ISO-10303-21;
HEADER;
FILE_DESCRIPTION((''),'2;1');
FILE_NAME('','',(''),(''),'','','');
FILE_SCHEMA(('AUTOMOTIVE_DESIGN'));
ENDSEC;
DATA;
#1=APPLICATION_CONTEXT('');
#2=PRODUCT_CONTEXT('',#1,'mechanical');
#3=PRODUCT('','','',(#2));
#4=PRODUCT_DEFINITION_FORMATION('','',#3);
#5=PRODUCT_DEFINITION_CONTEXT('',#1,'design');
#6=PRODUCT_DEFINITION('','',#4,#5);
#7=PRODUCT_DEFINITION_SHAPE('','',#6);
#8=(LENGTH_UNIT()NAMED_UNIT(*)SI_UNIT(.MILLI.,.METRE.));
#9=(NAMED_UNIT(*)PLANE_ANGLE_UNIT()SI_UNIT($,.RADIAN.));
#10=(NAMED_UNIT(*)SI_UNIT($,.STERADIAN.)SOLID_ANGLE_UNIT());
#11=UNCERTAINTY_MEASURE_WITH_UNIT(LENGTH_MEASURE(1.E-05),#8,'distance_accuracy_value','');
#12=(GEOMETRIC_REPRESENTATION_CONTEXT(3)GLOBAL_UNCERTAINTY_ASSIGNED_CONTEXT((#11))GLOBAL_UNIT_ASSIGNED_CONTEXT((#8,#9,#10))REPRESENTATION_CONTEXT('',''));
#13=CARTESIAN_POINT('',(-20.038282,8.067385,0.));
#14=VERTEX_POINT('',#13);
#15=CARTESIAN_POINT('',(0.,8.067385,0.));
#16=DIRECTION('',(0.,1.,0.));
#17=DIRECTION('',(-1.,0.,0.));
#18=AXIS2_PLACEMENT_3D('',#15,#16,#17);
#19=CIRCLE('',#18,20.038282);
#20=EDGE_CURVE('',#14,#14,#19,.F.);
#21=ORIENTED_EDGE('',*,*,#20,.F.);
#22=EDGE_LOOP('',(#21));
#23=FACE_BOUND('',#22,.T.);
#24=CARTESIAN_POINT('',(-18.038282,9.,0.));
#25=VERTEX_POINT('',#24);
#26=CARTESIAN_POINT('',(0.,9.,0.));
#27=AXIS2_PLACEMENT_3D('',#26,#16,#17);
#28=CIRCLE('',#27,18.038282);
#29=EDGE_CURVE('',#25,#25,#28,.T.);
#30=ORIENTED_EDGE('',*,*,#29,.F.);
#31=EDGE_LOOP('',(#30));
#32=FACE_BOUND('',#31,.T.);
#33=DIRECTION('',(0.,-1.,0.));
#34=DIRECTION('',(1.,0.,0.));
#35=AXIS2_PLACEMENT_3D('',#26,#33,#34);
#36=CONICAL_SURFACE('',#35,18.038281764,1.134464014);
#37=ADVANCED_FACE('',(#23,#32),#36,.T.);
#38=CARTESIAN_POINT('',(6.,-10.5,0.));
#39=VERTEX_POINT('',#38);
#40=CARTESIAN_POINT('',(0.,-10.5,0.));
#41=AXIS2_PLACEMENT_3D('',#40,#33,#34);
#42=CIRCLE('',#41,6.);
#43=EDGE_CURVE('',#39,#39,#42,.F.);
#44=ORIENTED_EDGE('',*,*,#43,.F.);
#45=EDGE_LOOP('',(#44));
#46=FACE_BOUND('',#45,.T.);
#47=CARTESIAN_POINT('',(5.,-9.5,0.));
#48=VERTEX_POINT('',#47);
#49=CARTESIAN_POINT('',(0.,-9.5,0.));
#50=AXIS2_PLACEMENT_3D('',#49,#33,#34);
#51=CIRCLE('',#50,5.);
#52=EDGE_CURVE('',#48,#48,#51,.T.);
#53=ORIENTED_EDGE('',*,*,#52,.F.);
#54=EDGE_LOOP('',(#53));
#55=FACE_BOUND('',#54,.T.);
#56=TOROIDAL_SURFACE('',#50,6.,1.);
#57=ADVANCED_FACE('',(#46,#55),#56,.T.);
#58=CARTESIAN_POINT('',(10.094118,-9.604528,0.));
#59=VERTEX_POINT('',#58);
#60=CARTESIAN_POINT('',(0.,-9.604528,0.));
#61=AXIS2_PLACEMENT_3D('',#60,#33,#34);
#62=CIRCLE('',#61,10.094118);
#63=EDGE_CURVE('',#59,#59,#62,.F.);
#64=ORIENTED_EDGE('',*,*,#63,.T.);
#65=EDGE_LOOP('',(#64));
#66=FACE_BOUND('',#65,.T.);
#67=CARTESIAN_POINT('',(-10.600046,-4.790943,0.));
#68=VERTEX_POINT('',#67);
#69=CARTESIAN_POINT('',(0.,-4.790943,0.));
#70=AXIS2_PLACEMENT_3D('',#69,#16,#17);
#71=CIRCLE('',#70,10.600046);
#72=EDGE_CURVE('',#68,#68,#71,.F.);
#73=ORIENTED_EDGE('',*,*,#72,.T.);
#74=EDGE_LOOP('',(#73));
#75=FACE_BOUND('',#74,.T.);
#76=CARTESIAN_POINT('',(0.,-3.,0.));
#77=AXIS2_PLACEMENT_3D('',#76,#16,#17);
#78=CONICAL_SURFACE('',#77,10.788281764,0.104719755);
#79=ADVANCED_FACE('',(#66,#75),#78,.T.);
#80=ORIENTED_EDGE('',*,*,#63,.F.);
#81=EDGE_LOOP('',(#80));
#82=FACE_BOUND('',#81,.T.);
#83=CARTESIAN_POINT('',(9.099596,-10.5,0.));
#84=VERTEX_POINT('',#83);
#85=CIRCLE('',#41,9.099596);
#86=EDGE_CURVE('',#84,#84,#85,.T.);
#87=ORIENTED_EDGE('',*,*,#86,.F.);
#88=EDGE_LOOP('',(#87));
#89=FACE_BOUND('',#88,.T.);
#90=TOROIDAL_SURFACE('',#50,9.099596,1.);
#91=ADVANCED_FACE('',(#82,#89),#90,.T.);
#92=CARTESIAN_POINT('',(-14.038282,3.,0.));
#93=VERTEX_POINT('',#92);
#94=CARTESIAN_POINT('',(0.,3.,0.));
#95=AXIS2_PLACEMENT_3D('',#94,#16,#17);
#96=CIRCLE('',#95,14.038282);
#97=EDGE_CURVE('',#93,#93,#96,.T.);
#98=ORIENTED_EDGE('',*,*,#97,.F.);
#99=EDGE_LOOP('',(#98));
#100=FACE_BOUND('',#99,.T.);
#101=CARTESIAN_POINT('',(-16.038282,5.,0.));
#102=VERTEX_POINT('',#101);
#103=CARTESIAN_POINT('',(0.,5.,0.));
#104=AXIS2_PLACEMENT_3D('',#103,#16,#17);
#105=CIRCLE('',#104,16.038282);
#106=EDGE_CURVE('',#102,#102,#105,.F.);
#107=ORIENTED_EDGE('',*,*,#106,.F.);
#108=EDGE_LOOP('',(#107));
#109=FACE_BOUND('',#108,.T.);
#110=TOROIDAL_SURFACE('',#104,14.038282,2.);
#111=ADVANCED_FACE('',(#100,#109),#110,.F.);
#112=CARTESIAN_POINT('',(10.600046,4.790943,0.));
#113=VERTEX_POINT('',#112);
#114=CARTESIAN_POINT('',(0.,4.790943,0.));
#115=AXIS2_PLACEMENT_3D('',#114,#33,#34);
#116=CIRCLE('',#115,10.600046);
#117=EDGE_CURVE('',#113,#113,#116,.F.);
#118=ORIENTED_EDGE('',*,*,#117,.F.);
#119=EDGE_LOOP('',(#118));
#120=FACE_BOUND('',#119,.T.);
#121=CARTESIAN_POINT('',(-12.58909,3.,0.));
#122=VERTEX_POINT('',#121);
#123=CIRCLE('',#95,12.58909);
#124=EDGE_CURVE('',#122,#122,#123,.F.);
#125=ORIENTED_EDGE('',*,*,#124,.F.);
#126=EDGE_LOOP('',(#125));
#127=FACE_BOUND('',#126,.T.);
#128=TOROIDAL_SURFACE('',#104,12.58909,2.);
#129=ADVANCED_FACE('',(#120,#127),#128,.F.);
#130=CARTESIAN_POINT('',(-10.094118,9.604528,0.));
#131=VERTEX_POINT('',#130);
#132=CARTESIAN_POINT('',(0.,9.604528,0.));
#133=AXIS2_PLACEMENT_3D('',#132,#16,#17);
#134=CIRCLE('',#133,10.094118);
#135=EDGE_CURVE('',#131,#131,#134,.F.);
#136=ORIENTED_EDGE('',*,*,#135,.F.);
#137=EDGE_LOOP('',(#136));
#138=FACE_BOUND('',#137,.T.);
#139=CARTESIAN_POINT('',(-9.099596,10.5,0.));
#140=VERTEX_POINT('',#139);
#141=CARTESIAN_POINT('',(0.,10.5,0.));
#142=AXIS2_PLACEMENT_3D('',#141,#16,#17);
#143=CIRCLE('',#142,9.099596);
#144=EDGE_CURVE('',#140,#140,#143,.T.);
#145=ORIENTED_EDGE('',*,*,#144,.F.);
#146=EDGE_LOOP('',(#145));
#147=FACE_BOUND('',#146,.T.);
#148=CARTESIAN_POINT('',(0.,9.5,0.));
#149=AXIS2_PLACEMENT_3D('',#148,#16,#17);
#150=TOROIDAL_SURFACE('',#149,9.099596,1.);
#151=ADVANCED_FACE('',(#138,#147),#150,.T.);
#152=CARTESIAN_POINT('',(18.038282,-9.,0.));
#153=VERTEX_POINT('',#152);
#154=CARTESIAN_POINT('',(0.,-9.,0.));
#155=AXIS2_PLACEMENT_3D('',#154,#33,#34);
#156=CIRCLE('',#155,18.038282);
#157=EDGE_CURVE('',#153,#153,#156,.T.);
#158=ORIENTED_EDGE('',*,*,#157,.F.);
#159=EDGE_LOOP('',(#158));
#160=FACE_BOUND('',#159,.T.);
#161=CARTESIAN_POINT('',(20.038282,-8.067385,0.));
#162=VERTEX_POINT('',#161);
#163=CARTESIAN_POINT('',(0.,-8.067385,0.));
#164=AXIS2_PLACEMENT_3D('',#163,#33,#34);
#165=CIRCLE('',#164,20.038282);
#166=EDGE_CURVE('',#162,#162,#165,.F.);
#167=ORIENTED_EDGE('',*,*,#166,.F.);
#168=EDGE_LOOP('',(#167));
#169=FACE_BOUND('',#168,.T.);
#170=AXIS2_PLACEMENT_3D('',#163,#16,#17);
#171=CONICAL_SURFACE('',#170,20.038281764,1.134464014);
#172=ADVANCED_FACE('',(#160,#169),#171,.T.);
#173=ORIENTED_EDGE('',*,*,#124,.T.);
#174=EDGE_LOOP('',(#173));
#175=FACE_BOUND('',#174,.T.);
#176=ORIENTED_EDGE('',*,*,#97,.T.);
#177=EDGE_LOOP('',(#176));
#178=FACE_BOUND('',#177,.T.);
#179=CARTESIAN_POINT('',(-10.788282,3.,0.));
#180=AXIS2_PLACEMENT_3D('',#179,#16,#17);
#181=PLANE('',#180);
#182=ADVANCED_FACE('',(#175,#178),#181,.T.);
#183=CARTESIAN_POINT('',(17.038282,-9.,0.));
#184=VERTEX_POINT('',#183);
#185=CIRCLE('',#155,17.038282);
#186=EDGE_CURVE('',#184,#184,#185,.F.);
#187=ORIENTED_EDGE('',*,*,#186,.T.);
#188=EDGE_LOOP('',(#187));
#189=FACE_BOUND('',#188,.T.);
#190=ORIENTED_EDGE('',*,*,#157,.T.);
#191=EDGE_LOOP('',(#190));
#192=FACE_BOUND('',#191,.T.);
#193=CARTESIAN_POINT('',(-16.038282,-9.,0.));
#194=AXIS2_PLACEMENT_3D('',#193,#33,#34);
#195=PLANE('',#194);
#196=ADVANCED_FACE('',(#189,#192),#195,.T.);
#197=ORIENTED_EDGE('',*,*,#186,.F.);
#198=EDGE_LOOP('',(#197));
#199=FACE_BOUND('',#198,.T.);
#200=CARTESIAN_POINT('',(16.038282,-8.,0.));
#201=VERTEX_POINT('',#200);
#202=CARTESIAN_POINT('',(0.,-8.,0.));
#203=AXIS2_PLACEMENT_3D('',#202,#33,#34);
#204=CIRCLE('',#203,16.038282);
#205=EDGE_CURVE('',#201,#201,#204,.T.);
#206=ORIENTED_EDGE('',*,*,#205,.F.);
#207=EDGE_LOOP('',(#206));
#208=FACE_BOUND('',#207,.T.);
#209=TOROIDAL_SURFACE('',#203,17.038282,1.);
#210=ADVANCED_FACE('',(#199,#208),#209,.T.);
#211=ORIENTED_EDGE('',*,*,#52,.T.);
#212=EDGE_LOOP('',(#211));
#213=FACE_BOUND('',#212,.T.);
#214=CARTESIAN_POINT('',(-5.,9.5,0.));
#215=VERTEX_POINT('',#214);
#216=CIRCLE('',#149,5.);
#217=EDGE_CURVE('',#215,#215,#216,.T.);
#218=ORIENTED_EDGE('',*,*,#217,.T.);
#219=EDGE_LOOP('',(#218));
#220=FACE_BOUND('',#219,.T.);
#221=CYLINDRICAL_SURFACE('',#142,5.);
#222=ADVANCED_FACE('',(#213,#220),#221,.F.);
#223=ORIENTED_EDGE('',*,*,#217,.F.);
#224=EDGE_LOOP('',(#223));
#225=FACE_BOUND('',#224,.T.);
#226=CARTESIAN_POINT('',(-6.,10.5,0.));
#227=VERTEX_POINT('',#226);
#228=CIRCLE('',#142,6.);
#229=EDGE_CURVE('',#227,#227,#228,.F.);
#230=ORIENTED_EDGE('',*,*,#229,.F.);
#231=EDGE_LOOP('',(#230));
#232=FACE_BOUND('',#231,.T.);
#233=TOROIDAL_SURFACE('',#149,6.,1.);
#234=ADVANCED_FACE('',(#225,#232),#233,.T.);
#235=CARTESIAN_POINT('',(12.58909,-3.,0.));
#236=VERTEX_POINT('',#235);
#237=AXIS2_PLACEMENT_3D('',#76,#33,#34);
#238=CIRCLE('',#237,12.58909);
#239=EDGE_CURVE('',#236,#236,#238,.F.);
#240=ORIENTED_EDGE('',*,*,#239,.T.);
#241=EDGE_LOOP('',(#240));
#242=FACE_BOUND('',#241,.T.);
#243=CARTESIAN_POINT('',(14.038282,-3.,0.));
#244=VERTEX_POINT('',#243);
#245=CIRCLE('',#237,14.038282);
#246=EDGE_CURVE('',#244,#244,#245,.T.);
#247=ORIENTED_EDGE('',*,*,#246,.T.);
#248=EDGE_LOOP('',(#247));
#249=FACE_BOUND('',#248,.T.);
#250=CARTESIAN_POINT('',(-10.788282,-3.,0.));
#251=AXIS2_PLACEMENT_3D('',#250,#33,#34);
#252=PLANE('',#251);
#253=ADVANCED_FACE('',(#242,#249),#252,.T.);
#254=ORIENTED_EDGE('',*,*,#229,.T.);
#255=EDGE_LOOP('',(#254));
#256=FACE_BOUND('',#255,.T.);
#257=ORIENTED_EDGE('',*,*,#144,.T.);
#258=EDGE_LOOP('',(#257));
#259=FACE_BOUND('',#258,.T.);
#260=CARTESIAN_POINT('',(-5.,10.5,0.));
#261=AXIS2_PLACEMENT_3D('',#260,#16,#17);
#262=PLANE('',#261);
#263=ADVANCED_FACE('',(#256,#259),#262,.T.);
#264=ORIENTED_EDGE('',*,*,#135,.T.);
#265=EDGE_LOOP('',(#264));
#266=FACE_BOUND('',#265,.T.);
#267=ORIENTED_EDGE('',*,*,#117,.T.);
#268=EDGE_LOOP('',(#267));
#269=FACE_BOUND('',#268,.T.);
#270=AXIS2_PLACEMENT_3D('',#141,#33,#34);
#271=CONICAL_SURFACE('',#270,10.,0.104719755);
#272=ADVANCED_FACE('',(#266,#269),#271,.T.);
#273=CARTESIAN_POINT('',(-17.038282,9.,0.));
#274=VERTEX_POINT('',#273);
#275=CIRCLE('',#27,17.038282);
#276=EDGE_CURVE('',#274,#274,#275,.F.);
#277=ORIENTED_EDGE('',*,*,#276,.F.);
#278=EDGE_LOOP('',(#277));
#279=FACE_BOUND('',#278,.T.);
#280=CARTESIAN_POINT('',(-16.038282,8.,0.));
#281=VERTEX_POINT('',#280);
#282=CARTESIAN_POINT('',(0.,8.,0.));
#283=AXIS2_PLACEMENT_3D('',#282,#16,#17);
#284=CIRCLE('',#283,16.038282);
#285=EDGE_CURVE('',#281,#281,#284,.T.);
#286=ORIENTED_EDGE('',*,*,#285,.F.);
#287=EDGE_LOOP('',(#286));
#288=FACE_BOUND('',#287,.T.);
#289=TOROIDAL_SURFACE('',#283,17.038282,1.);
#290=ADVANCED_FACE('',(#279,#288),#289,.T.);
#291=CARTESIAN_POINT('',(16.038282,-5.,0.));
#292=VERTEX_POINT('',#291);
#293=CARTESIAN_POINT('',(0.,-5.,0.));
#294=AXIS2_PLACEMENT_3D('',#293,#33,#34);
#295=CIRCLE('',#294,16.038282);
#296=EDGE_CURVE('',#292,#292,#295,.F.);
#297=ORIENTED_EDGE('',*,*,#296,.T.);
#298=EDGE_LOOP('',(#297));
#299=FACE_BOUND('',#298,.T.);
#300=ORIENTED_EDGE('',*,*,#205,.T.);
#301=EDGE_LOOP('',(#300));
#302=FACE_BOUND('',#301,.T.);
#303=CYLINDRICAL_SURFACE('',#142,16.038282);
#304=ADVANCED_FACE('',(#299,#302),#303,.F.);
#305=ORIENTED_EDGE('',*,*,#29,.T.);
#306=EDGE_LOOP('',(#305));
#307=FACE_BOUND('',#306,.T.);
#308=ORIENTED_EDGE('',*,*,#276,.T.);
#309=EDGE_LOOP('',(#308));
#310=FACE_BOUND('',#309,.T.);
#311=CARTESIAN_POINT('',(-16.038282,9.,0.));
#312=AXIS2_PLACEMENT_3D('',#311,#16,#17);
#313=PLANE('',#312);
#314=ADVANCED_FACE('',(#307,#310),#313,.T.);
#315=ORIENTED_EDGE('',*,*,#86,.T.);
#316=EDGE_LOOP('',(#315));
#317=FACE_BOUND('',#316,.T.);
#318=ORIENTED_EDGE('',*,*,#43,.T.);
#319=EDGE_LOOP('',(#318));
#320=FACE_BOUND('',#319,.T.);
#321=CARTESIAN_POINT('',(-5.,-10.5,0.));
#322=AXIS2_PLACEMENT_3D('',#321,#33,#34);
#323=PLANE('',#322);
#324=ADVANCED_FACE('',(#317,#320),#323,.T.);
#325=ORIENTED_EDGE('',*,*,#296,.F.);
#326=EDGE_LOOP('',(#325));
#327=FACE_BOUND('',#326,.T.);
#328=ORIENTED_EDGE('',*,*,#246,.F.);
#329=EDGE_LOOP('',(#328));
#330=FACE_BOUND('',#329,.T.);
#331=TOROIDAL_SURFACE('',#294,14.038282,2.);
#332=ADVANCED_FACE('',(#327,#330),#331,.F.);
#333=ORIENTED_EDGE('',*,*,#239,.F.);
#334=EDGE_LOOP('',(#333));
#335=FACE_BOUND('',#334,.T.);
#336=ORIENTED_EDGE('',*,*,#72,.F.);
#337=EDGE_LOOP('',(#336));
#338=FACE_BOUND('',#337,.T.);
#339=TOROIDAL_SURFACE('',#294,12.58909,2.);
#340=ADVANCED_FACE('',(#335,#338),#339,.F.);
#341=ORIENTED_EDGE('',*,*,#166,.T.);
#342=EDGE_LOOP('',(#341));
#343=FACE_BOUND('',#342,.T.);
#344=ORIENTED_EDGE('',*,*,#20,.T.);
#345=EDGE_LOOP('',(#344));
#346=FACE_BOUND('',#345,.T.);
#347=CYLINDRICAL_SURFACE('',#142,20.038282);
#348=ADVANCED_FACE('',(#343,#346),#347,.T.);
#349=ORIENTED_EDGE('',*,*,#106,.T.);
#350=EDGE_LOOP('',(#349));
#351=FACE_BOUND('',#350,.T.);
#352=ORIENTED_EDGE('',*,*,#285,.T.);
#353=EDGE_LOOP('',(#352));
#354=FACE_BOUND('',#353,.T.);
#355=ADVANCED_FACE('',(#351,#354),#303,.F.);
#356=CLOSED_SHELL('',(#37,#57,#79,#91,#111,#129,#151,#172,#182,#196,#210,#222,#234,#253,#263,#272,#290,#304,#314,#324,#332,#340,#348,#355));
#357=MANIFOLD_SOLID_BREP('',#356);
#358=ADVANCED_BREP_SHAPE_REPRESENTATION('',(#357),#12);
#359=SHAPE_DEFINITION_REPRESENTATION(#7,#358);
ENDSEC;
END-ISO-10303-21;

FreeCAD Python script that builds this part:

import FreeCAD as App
import Part
import Sketcher

V = App.Vector
Q = App.Units.Quantity


def edges_at(feature, points):
    """Names of the edges that pass closest to the given points."""
    edges = feature.Shape.Edges
    near = lambda p: min(range(len(edges)), key=lambda i: edges[i].distToShape(Part.Vertex(*p))[0])
    return sorted({f"Edge{near(p) + 1}" for p in points})

doc = App.newDocument("Part")
params = doc.addObject("Spreadsheet::Sheet", "Params")
for row, (alias, value) in enumerate([
    ("sketch1_width", "5 mm"),
    ("sketch1_width2", "4 mm"),
    ("sketch1_height", "6 mm"),
    ("sketch1_height2", "18 mm"),
    ("sketch1_height3", "21 mm"),
    ("revolution_angle", "360 deg"),
    ("fillet_radius", "2 mm"),
    ("fillet2_radius", "1 mm"),
    ("chamfer_size", "2 mm"),
    ("chamfer_size2", "0.932615 mm"),
    ("chamfer2_size", "2 mm"),
    ("chamfer2_size2", "0.932615 mm"),
], start=1):
    params.set(f"A{row}", alias)
    params.set(f"B{row}", "=" + value)
    params.setAlias(f"B{row}", alias)

body = doc.addObject("PartDesign::Body", "Body")

sketch1 = doc.addObject("Sketcher::SketchObject", "Sketch")
body.addObject(sketch1)
sketch1.AttachmentSupport = (doc.XY_Plane, [""])
sketch1.MapMode = "FlatFace"
sketch1.addGeometry([
    Part.LineSegment(V(-5, 10.5, 0), V(-10, 10.5, 0)),
    Part.LineSegment(V(-10, 10.5, 0), V(-10.8, 3, 0)),
    Part.LineSegment(V(-10.8, 3, 0), V(-16, 3, 0)),
    Part.LineSegment(V(-16, 3, 0), V(-16, 9, 0)),
    Part.LineSegment(V(-16, 9, 0), V(-20, 9, 0)),
    Part.LineSegment(V(-20, 9, 0), V(-20, -9, 0)),
    Part.LineSegment(V(-20, -9, 0), V(-16, -9, 0)),
    Part.LineSegment(V(-16, -9, 0), V(-16, -3, 0)),
    Part.LineSegment(V(-16, -3, 0), V(-10.8, -3, 0)),
    Part.LineSegment(V(-10.8, -3, 0), V(-10, -10.5, 0)),
    Part.LineSegment(V(-10, -10.5, 0), V(-5, -10.5, 0)),
    Part.LineSegment(V(-5, -10.5, 0), V(-5, 10.5, 0)),
], False)
sketch1.addConstraint([
    Sketcher.Constraint("Coincident", 0, 2, 1, 1),
    Sketcher.Constraint("Coincident", 1, 2, 2, 1),
    Sketcher.Constraint("Coincident", 2, 2, 3, 1),
    Sketcher.Constraint("Coincident", 3, 2, 4, 1),
    Sketcher.Constraint("Coincident", 4, 2, 5, 1),
    Sketcher.Constraint("Coincident", 5, 2, 6, 1),
    Sketcher.Constraint("Coincident", 6, 2, 7, 1),
    Sketcher.Constraint("Coincident", 7, 2, 8, 1),
    Sketcher.Constraint("Coincident", 8, 2, 9, 1),
    Sketcher.Constraint("Coincident", 9, 2, 10, 1),
    Sketcher.Constraint("Coincident", 10, 2, 11, 1),
    Sketcher.Constraint("Coincident", 11, 2, 0, 1),
    Sketcher.Constraint("Horizontal", 0),
    Sketcher.Constraint("Horizontal", 2),
    Sketcher.Constraint("Vertical", 3),
    Sketcher.Constraint("Horizontal", 4),
    Sketcher.Constraint("Vertical", 5),
    Sketcher.Constraint("Horizontal", 6),
    Sketcher.Constraint("Vertical", 7),
    Sketcher.Constraint("Horizontal", 8),
    Sketcher.Constraint("Horizontal", 10),
    Sketcher.Constraint("Vertical", 11),
    Sketcher.Constraint("Symmetric", 3, 2, 6, 2, -1),
    Sketcher.Constraint("Symmetric", 1, 2, 8, 2, -1),
    Sketcher.Constraint("Symmetric", 0, 2, 9, 2, -1),
    Sketcher.Constraint("DistanceX", 0, 2, 0, 1, 5.0),
    Sketcher.Constraint("DistanceX", 4, 2, 4, 1, 4.0),
    Sketcher.Constraint("DistanceY", 3, 1, 3, 2, 6.0),
    Sketcher.Constraint("DistanceY", 5, 2, 5, 1, 18.0),
    Sketcher.Constraint("DistanceY", 11, 1, 11, 2, 21.0),
    Sketcher.Constraint("Angle", 1, Q("-96 deg")),
    Sketcher.Constraint("DistanceX", 0, 2, -1, 1, 10.0),
    Sketcher.Constraint("DistanceX", 2, 2, 2, 1, 5.25),
])
sketch1.setExpression("Constraints[25]", "Params.sketch1_width")
sketch1.setExpression("Constraints[26]", "Params.sketch1_width2")
sketch1.setExpression("Constraints[27]", "Params.sketch1_height")
sketch1.setExpression("Constraints[28]", "Params.sketch1_height2")
sketch1.setExpression("Constraints[29]", "Params.sketch1_height3")
revolution = doc.addObject("PartDesign::Revolution", "Revolution")
body.addObject(revolution)
revolution.Profile = sketch1
revolution.ReferenceAxis = (sketch1, ["V_Axis"])
revolution.setExpression("Angle", "Params.revolution_angle")
doc.recompute()

fillet = doc.addObject("PartDesign::Fillet", "Fillet")
body.addObject(fillet)
fillet.Base = (revolution, edges_at(revolution, [
    (16.038, -3, 0),
    (10.788, -3, 0),
    (10.788, 3, 0),
    (16.038, 3, 0),
]))
fillet.setExpression("Radius", "Params.fillet_radius")
doc.recompute()

fillet2 = doc.addObject("PartDesign::Fillet", "Fillet001")
body.addObject(fillet2)
fillet2.Base = (fillet, edges_at(fillet, [
    (16.038, 9, 0),
    (16.038, -9, 0),
    (10, -10.5, 0),
    (5, -10.5, 0),
    (5, 10.5, 0),
    (10, 10.5, 0),
]))
fillet2.setExpression("Radius", "Params.fillet2_radius")
doc.recompute()

chamfer = doc.addObject("PartDesign::Chamfer", "Chamfer")
body.addObject(chamfer)
chamfer.Base = (fillet2, edges_at(fillet2, [(20.038, -9, 0)]))
chamfer.ChamferType = "Two distances"
chamfer.setExpression("Size", "Params.chamfer_size")
chamfer.setExpression("Size2", "Params.chamfer_size2")
chamfer.FlipDirection = True
doc.recompute()

chamfer2 = doc.addObject("PartDesign::Chamfer", "Chamfer001")
body.addObject(chamfer2)
chamfer2.Base = (chamfer, edges_at(chamfer, [(20.038, 9, 0)]))
chamfer2.ChamferType = "Two distances"
chamfer2.setExpression("Size", "Params.chamfer2_size")
chamfer2.setExpression("Size2", "Params.chamfer2_size2")
chamfer2.FlipDirection = True

doc.recompute()
